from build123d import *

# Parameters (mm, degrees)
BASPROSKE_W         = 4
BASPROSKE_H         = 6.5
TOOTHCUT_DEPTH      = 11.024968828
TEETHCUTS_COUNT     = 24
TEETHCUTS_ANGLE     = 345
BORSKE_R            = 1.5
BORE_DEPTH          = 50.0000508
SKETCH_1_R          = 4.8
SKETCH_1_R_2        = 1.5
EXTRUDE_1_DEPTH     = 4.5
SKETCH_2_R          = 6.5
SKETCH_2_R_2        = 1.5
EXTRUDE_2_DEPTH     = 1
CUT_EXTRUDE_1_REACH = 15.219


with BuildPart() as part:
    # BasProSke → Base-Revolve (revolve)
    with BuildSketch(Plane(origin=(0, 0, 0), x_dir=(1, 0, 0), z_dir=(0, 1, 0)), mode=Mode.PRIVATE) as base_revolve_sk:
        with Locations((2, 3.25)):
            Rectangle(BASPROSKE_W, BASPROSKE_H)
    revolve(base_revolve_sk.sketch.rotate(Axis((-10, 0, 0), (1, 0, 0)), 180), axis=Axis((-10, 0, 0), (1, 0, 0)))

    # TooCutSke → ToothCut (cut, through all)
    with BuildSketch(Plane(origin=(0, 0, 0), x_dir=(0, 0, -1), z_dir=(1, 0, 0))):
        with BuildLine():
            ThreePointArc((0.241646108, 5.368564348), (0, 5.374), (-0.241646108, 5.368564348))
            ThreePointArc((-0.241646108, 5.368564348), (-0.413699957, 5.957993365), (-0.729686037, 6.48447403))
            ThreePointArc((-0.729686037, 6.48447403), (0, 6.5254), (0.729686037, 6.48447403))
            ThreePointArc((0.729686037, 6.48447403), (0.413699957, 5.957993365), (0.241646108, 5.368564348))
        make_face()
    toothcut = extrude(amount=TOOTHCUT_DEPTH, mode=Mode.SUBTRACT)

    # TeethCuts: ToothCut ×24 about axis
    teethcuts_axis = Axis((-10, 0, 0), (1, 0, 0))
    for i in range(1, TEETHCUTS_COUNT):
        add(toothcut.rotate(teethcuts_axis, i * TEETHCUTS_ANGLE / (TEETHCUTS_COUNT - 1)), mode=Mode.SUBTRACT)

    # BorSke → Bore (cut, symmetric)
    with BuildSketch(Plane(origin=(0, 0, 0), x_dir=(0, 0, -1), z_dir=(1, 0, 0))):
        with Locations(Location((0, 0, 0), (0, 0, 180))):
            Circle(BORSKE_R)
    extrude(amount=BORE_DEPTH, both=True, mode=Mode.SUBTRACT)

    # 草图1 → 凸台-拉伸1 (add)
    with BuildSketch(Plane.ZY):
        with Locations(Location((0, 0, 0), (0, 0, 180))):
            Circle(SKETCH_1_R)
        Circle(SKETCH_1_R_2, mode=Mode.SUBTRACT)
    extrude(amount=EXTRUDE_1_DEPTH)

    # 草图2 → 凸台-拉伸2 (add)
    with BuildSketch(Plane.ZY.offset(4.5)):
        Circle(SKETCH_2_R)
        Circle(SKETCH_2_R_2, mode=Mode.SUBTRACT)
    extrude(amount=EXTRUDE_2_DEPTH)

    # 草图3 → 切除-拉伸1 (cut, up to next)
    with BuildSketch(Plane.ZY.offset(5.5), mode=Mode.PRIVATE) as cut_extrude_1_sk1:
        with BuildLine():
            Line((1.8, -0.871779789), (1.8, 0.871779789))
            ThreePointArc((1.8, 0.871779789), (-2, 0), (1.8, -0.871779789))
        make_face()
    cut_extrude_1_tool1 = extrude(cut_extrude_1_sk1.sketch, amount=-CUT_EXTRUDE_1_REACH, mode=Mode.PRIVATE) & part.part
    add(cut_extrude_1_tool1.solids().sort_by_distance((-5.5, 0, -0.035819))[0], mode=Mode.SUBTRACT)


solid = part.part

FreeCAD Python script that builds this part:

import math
import FreeCAD as App
import Part
import Sketcher
from FreeCAD import Vector

doc = App.newDocument("Part")
body = doc.addObject("PartDesign::Body", "Body")

# Sketch on XZ plane
sketch1 = body.newObject("Sketcher::SketchObject", "Sketch")
sketch1.AttachmentSupport = (doc.getObject("XZ_Plane"), [""])
sketch1.MapMode = "FlatFace"
sketch1.addGeometry(Part.LineSegment(Vector(0, -6.5, 0), Vector(0, 0, 0)), False)
sketch1.addGeometry(Part.LineSegment(Vector(0, 0, 0), Vector(4, 0, 0)), False)
sketch1.addGeometry(Part.LineSegment(Vector(4, 0, 0), Vector(4, -6.5, 0)), False)
sketch1.addGeometry(Part.LineSegment(Vector(4, -6.5, 0), Vector(0, -6.5, 0)), False)
sketch1.addConstraint(Sketcher.Constraint("Coincident", 0, 2, 1, 1))
sketch1.addConstraint(Sketcher.Constraint("Coincident", 1, 2, 2, 1))
sketch1.addConstraint(Sketcher.Constraint("Coincident", 2, 2, 3, 1))
sketch1.addConstraint(Sketcher.Constraint("Coincident", 3, 2, 0, 1))
sketch1.addConstraint(Sketcher.Constraint("Vertical", 0))
sketch1.addConstraint(Sketcher.Constraint("Horizontal", 1))
sketch1.addConstraint(Sketcher.Constraint("Vertical", 2))
sketch1.addConstraint(Sketcher.Constraint("Horizontal", 3))
sketch1.addConstraint(Sketcher.Constraint("Coincident", 0, 2, -1, 1))
sketch1.addConstraint(Sketcher.Constraint("DistanceX", 1, 1, 1, 2, 4.0))
sketch1.addConstraint(Sketcher.Constraint("DistanceY", 0, 1, 0, 2, 6.5))
revolution = body.newObject("PartDesign::Revolution", "Revolution")
revolution.Profile = sketch1
revolution.ReferenceAxis = (sketch1, ["H_Axis"])
revolution.Angle = 360

# Sketch on YZ plane
sketch2 = body.newObject("Sketcher::SketchObject", "Sketch001")
sketch2.AttachmentSupport = (doc.getObject("YZ_Plane"), [""])
sketch2.MapMode = "FlatFace"
sketch2.addGeometry(Part.ArcOfCircle(Part.Circle(Vector(0, 0, 0), Vector(0, 0, 1), 5.37), math.radians(-2.58), math.radians(2.58)), False)
sketch2.addGeometry(Part.ArcOfCircle(Part.Circle(Vector(5, -2.61, 0), Vector(0, 0, 1), 2.4), math.radians(52), math.radians(81)), False)
sketch2.addGeometry(Part.ArcOfCircle(Part.Circle(Vector(0, 0, 0), Vector(0, 0, 1), 6.53), math.radians(-6.42), math.radians(6.42)), False)
sketch2.addGeometry(Part.ArcOfCircle(Part.Circle(Vector(5, 2.61, 0), Vector(0, 0, 1), 2.4), math.radians(-81), math.radians(-52)), False)
sketch2.addConstraint(Sketcher.Constraint("Coincident", 0, 1, 1, 2))
sketch2.addConstraint(Sketcher.Constraint("Coincident", 1, 1, 2, 1))
sketch2.addConstraint(Sketcher.Constraint("Coincident", 2, 2, 3, 2))
sketch2.addConstraint(Sketcher.Constraint("Coincident", 3, 1, 0, 2))
sketch2.addConstraint(Sketcher.Constraint("Coincident", 0, 3, -1, 1))
sketch2.addConstraint(Sketcher.Constraint("Coincident", 2, 3, -1, 1))
sketch2.addConstraint(Sketcher.Constraint("Equal", 1, 3))
sketch2.addConstraint(Sketcher.Constraint("Symmetric", 1, 3, 3, 3, -1))
sketch2.addConstraint(Sketcher.Constraint("Radius", 1, 2.4))
sketch2.addConstraint(Sketcher.Constraint("Radius", 0, 5.374))
sketch2.addConstraint(Sketcher.Constraint("Radius", 2, 6.5254))
sketch2.addConstraint(Sketcher.Constraint("DistanceY", 1, 3, -1, 1, 2.612601))
sketch2.addConstraint(Sketcher.Constraint("DistanceX", -1, 1, 1, 3, 4.99631))
pocket1 = body.newObject("PartDesign::Pocket", "Pocket")
pocket1.Profile = sketch2
pocket1.Type = "ThroughAll"
pocket1.Reversed = True
doc.recompute()

polarpattern = body.newObject("PartDesign::PolarPattern", "PolarPattern")
polarpattern.Originals = [pocket1]
polarpattern.Axis = (doc.getObject("X_Axis"), [""])
polarpattern.Angle = 360
polarpattern.Occurrences = 24
body.Tip = polarpattern

# Sketch on YZ plane
sketch3 = body.newObject("Sketcher::SketchObject", "Sketch002")
sketch3.AttachmentSupport = (doc.getObject("YZ_Plane"), [""])
sketch3.MapMode = "FlatFace"
sketch3.addGeometry(Part.Circle(Vector(0, 0, 0), Vector(0, 0, 1), 1.5), False)
sketch3.addConstraint(Sketcher.Constraint("Coincident", 0, 3, -1, 1))
sketch3.addConstraint(Sketcher.Constraint("Diameter", 0, 3.0))
pocket2 = body.newObject("PartDesign::Pocket", "Pocket001")
pocket2.Profile = sketch3
pocket2.Length = 100.000102
pocket2.Midplane = True

# Sketch on YZ plane
sketch4 = body.newObject("Sketcher::SketchObject", "Sketch003")
sketch4.AttachmentSupport = (doc.getObject("YZ_Plane"), [""])
sketch4.MapMode = "FlatFace"
sketch4.addGeometry(Part.Circle(Vector(0, 0, 0), Vector(0, 0, 1), 4.8), False)
sketch4.addGeometry(Part.Circle(Vector(0, 0, 0), Vector(0, 0, 1), 1.5), False)
sketch4.addConstraint(Sketcher.Constraint("Coincident", 0, 3, -1, 1))
sketch4.addConstraint(Sketcher.Constraint("Coincident", 1, 3, -1, 1))
sketch4.addConstraint(Sketcher.Constraint("Diameter", 1, 3.0))
sketch4.addConstraint(Sketcher.Constraint("Diameter", 0, 9.6))
pad1 = body.newObject("PartDesign::Pad", "Pad")
pad1.Profile = sketch4
pad1.Length = 4.5
pad1.Reversed = True

# Sketch on YZ plane
sketch5 = body.newObject("Sketcher::SketchObject", "Sketch004")
sketch5.AttachmentSupport = (doc.getObject("YZ_Plane"), [""])
sketch5.MapMode = "FlatFace"
sketch5.AttachmentOffset = App.Placement(Vector(0, 0, -4.5), App.Rotation())
sketch5.addGeometry(Part.Circle(Vector(0, 0, 0), Vector(0, 0, 1), 6.5), False)
sketch5.addGeometry(Part.Circle(Vector(0, 0, 0), Vector(0, 0, 1), 1.5), False)
sketch5.addConstraint(Sketcher.Constraint("Coincident", 0, 3, -1, 1))
sketch5.addConstraint(Sketcher.Constraint("Coincident", 1, 3, -1, 1))
sketch5.addConstraint(Sketcher.Constraint("Diameter", 0, 13.0))
sketch5.addConstraint(Sketcher.Constraint("Diameter", 1, 3.0))
pad2 = body.newObject("PartDesign::Pad", "Pad001")
pad2.Profile = sketch5
pad2.Length = 1
pad2.Reversed = True

# Sketch on YZ plane
sketch6 = body.newObject("Sketcher::SketchObject", "Sketch005")
sketch6.AttachmentSupport = (doc.getObject("YZ_Plane"), [""])
sketch6.MapMode = "FlatFace"
sketch6.AttachmentOffset = App.Placement(Vector(0, 0, -5.5), App.Rotation())
sketch6.addGeometry(Part.LineSegment(Vector(-0.9, 1.8, 0), Vector(0.9, 1.8, 0)), False)
sketch6.addGeometry(Part.ArcOfCircle(Part.Circle(Vector(0, 0, 0), Vector(0, 0, 1), 2), math.radians(116), math.radians(424)), False)
sketch6.addConstraint(Sketcher.Constraint("Coincident", 0, 1, 1, 1))
sketch6.addConstraint(Sketcher.Constraint("Coincident", 1, 2, 0, 2))
sketch6.addConstraint(Sketcher.Constraint("Horizontal", 0))
sketch6.addConstraint(Sketcher.Constraint("Coincident", 1, 3, -1, 1))
sketch6.addConstraint(Sketcher.Constraint("Radius", 1, 2.0))
sketch6.addConstraint(Sketcher.Constraint("DistanceY", -1, 1, 0, 1, 1.8))
pocket3 = body.newObject("PartDesign::Pocket", "Pocket002")
pocket3.Profile = sketch6
pocket3.Length = 9.5
pocket3.Reversed = True

doc.recompute()
